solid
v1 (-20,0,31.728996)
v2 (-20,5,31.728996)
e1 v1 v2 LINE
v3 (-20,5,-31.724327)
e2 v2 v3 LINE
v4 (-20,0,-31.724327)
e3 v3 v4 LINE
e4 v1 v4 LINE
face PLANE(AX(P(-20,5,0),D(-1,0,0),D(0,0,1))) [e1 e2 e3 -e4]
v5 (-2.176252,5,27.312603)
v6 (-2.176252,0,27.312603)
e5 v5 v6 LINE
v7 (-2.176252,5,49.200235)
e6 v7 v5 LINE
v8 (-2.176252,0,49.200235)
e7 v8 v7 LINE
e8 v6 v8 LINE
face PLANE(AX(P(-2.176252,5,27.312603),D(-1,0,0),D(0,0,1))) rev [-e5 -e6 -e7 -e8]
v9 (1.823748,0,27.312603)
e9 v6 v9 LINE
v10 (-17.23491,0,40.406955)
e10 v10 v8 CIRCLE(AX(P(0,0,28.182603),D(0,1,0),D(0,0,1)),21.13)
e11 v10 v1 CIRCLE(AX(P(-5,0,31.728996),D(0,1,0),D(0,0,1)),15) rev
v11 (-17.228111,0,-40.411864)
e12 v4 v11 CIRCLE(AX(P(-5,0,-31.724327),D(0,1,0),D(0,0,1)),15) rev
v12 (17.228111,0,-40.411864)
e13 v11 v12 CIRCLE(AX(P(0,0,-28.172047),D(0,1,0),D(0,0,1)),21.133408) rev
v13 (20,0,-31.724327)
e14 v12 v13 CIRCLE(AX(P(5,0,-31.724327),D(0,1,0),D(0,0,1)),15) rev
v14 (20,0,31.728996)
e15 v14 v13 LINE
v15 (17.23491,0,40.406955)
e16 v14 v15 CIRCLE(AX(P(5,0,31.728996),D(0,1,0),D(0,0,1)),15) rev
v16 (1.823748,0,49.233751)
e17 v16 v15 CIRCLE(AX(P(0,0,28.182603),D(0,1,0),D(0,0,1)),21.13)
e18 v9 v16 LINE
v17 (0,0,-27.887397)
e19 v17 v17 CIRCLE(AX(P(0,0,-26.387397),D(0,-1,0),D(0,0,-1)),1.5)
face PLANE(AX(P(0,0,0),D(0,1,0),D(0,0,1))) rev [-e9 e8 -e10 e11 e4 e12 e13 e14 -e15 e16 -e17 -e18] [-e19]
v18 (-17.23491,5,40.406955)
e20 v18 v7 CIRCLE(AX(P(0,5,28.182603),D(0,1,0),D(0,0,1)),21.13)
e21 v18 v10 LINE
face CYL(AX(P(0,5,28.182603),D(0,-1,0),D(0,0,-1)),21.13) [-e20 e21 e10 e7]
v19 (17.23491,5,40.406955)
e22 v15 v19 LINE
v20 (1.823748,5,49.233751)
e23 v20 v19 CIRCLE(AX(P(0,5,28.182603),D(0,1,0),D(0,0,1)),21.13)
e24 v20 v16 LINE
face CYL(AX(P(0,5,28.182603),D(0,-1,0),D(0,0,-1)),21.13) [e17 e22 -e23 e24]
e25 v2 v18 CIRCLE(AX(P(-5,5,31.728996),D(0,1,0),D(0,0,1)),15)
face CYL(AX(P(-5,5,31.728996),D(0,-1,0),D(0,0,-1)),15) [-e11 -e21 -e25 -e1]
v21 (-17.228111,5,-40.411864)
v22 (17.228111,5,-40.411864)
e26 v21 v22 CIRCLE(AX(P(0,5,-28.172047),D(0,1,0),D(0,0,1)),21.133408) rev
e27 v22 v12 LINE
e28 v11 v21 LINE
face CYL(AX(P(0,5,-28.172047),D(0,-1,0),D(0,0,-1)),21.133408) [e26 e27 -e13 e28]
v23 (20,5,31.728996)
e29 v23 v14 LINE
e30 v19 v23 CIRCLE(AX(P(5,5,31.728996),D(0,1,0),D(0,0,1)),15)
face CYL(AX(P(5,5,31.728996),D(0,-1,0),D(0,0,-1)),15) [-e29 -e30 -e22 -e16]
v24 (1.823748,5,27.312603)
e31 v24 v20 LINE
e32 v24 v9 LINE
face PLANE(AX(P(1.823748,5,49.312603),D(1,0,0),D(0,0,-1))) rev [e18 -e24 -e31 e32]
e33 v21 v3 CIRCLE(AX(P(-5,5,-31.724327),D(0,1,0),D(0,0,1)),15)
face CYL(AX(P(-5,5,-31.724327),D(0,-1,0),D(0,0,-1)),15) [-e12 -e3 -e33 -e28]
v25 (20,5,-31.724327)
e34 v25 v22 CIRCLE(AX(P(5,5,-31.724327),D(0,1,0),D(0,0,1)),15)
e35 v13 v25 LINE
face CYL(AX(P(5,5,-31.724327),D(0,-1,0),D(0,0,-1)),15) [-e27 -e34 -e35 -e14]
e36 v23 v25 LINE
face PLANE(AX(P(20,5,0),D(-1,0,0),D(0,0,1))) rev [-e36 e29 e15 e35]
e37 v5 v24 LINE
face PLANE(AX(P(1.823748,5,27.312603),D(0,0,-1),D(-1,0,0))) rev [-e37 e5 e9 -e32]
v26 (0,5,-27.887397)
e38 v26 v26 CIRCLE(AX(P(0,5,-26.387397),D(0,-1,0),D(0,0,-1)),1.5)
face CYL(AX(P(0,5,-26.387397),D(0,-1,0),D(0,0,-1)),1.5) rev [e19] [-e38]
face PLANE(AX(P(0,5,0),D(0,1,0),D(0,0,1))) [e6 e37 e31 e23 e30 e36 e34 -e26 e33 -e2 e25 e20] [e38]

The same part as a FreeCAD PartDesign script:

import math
import FreeCAD as App
import Part
import Sketcher

V = App.Vector
Q = App.Units.Quantity


def edges_at(feature, points):
    """Names of the edges that pass closest to the given points."""
    edges = feature.Shape.Edges
    near = lambda p: min(range(len(edges)), key=lambda i: edges[i].distToShape(Part.Vertex(*p))[0])
    return sorted({f"Edge{near(p) + 1}" for p in points})


def add_polygon(sketch, points):
    """Adds a closed chain of lines whose ends are joined by coincident constraints."""
    first, n = sketch.GeometryCount, len(points)
    for a, b in zip(points, points[1:] + points[:1]):
        sketch.addGeometry(Part.LineSegment(App.Vector(*a, 0), App.Vector(*b, 0)), False)
    for i in range(n):
        sketch.addConstraint(Sketcher.Constraint("Coincident", first + i, 2, first + (i + 1) % n, 1))

doc = App.newDocument("Part")
body = doc.addObject("PartDesign::Body", "Body")

# Sketch on XZ plane
sketch1 = body.newObject("Sketcher::SketchObject", "Sketch")
sketch1.AttachmentSupport = (doc.getObject("XZ_Plane"), [""])
sketch1.MapMode = "FlatFace"
sketch1.addGeometry([
    Part.ArcOfCircle(Part.Circle(V(0, 28, 0), V(0, 0, 1), 21), math.radians(19), math.radians(161)),
    Part.LineSegment(V(20, 35, 0), V(20, -35, 0)),
    Part.ArcOfCircle(Part.Circle(V(0, -28, 0), V(0, 0, 1), 21), math.radians(-161), math.radians(-19)),
    Part.LineSegment(V(-20, -35, 0), V(-20, 35, 0)),
], False)
sketch1.addConstraint([
    Sketcher.Constraint("Coincident", 0, 1, 1, 1),
    Sketcher.Constraint("Coincident", 1, 2, 2, 2),
    Sketcher.Constraint("Coincident", 2, 1, 3, 1),
    Sketcher.Constraint("Coincident", 3, 2, 0, 2),
    Sketcher.Constraint("Vertical", 1),
    Sketcher.Constraint("Vertical", 3),
    Sketcher.Constraint("Symmetric", 0, 1, 2, 1, -1, 1),
    Sketcher.Constraint("PointOnObject", 0, 3, -2),
    Sketcher.Constraint("PointOnObject", 2, 3, -2),
    Sketcher.Constraint("DistanceY", 1, 2, 1, 1, Q("70 mm")),
    Sketcher.Constraint("Radius", 0, Q("21.13 mm")),
    Sketcher.Constraint("DistanceX", -1, 1, 0, 1, Q("20 mm")),
    Sketcher.Constraint("Radius", 2, Q("21.133408 mm")),
])
pad1 = body.newObject("PartDesign::Pad", "Pad")
pad1.Profile = sketch1
pad1.Length = 5
pad1.Reversed = True
doc.recompute()

fillet = body.newObject("PartDesign::Fillet", "Fillet")
fillet.Base = (pad1, edges_at(pad1, [
    (-20, 2.5, 35),
    (-20, 2.5, -35),
    (20, 2.5, -35),
    (20, 2.5, 35),
]))
fillet.Radius = 15

# Sketch on XZ plane
sketch2 = body.newObject("Sketcher::SketchObject", "Sketch001")
sketch2.AttachmentSupport = (doc.getObject("XZ_Plane"), [""])
sketch2.MapMode = "FlatFace"
add_polygon(sketch2, [(1.8, 49.3), (-2.2, 49.3), (-2.2, 27.3), (1.8, 27.3)])  # lines 0-3
sketch2.addConstraint([
    Sketcher.Constraint("Horizontal", 0),
    Sketcher.Constraint("Vertical", 1),
    Sketcher.Constraint("Horizontal", 2),
    Sketcher.Constraint("Vertical", 3),
    Sketcher.Constraint("DistanceX", 0, 2, 0, 1, Q("4 mm")),
    Sketcher.Constraint("DistanceY", 1, 2, 1, 1, Q("22 mm")),
    Sketcher.Constraint("DistanceX", 0, 2, -1, 1, Q("2.176252 mm")),
    Sketcher.Constraint("DistanceY", -1, 1, 0, 2, Q("49.312603 mm")),
])
pocket1 = body.newObject("PartDesign::Pocket", "Pocket")
pocket1.Profile = sketch2
pocket1.Type = "ThroughAll"

# Sketch on XZ plane
sketch3 = body.newObject("Sketcher::SketchObject", "Sketch002")
sketch3.AttachmentSupport = (doc.getObject("XZ_Plane"), [""])
sketch3.MapMode = "FlatFace"
sketch3.addGeometry(Part.Circle(V(0, -26.4, 0), V(0, 0, 1), 1.5), False)
sketch3.addConstraint([
    Sketcher.Constraint("PointOnObject", 0, 3, -2),
    Sketcher.Constraint("Diameter", 0, Q("3 mm")),
    Sketcher.Constraint("DistanceY", 0, 3, -1, 1, Q("26.387397 mm")),
])
pocket2 = body.newObject("PartDesign::Pocket", "Pocket001")
pocket2.Profile = sketch3
pocket2.Type = "ThroughAll"

doc.recompute()
